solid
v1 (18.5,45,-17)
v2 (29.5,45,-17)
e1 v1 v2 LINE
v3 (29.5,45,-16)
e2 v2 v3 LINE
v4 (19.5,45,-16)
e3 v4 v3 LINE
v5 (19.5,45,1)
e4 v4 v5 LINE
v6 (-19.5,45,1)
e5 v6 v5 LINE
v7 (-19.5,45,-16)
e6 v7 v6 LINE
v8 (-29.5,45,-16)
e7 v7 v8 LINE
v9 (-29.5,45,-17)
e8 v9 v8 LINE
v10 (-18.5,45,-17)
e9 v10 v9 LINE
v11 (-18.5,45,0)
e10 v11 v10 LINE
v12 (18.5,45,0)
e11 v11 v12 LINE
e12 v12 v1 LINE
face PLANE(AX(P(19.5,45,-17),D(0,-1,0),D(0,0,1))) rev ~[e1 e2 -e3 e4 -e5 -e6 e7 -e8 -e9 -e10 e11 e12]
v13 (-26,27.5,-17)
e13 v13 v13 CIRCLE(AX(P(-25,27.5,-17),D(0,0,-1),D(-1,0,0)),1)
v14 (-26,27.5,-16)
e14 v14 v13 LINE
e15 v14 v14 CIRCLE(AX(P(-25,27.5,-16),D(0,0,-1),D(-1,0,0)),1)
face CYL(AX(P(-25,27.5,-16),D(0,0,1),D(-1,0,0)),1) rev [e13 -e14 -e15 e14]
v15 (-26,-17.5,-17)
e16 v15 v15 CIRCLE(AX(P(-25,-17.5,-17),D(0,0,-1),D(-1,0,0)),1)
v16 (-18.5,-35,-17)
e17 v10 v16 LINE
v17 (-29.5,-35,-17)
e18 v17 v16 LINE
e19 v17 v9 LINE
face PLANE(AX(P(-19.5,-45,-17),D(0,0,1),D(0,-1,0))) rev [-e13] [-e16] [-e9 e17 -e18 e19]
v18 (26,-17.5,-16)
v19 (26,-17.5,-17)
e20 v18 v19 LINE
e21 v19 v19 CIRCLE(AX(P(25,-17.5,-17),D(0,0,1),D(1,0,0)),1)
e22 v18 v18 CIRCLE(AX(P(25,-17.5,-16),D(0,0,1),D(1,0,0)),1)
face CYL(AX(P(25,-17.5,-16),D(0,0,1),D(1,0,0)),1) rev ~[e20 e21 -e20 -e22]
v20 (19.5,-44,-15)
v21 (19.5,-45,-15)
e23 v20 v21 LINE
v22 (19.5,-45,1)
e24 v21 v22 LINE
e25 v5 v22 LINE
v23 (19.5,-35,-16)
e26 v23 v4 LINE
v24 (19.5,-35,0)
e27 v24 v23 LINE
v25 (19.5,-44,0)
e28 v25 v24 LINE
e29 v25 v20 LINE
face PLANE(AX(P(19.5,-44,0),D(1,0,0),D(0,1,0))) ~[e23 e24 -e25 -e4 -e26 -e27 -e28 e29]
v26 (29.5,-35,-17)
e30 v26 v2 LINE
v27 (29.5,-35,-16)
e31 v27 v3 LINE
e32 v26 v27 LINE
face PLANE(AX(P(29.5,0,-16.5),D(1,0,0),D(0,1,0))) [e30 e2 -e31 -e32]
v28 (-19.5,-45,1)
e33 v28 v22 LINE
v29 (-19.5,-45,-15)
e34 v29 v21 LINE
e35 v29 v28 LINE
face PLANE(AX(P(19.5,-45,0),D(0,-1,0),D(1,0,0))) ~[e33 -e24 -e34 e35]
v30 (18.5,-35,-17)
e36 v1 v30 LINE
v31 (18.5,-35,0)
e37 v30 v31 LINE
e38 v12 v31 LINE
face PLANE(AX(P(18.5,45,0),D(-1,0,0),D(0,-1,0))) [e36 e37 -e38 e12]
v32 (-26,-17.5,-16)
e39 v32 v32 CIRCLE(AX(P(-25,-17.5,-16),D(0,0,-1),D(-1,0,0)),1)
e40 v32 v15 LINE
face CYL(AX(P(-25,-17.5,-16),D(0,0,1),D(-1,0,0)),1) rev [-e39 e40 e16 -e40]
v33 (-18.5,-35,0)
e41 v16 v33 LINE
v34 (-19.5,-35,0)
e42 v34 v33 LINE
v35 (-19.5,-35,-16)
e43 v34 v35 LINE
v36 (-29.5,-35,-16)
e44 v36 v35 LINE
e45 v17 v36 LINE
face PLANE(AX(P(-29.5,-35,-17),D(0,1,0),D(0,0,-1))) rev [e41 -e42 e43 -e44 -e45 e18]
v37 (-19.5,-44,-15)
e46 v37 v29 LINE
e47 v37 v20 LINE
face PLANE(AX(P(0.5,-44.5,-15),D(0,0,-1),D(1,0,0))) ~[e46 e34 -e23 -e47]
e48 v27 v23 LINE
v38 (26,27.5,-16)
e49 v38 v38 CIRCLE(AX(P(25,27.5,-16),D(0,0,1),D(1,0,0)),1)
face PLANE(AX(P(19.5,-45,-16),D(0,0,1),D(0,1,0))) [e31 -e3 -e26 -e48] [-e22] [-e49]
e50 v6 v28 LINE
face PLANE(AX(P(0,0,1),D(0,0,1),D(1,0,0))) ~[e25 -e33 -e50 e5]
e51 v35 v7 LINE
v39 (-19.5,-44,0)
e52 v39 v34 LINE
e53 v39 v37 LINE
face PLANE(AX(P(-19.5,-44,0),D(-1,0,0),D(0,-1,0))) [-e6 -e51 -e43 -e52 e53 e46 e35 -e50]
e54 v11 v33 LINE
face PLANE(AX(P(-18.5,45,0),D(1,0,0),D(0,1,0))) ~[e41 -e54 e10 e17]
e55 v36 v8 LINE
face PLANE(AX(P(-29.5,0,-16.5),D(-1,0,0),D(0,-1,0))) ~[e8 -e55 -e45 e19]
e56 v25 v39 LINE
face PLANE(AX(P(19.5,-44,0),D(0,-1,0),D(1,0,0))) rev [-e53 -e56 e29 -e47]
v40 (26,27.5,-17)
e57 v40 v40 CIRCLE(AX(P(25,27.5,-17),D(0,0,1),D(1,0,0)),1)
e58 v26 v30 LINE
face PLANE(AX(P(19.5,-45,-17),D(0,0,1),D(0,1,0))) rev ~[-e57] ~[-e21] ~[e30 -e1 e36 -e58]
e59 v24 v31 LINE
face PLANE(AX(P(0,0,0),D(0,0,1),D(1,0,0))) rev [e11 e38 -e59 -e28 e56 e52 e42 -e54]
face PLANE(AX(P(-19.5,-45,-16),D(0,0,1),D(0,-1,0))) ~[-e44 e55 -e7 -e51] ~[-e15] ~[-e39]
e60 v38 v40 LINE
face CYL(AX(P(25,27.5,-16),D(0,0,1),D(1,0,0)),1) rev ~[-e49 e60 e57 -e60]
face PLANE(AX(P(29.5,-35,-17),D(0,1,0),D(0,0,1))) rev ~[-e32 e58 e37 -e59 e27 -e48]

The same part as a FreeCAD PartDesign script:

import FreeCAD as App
import Part
import Sketcher
from FreeCAD import Vector

doc = App.newDocument("Part")
body = doc.addObject("PartDesign::Body", "Body")

# Sketch on XY plane
sketch1 = body.newObject("Sketcher::SketchObject", "Sketch")
sketch1.AttachmentSupport = (doc.getObject("XY_Plane"), [""])
sketch1.MapMode = "FlatFace"
sketch1.addGeometry([
    Part.LineSegment(Vector(-19.5, 45, 0), Vector(-19.5, -45, 0)),
    Part.LineSegment(Vector(-19.5, -45, 0), Vector(19.5, -45, 0)),
    Part.LineSegment(Vector(19.5, -45, 0), Vector(19.5, 45, 0)),
    Part.LineSegment(Vector(19.5, 45, 0), Vector(-19.5, 45, 0)),
], False)
sketch1.addConstraint([
    Sketcher.Constraint("Coincident", 0, 2, 1, 1),
    Sketcher.Constraint("Coincident", 1, 2, 2, 1),
    Sketcher.Constraint("Coincident", 2, 2, 3, 1),
    Sketcher.Constraint("Coincident", 3, 2, 0, 1),
    Sketcher.Constraint("Vertical", 0),
    Sketcher.Constraint("Horizontal", 1),
    Sketcher.Constraint("Vertical", 2),
    Sketcher.Constraint("Horizontal", 3),
    Sketcher.Constraint("Symmetric", 0, 2, 2, 2, -1, 1),
    Sketcher.Constraint("DistanceX", 1, 1, 1, 2, 39.0),
    Sketcher.Constraint("DistanceY", 0, 2, 0, 1, 90.0),
])
pad1 = body.newObject("PartDesign::Pad", "Pad")
pad1.Profile = sketch1
pad1.Length = 1

# Sketch on XY plane
sketch2 = body.newObject("Sketcher::SketchObject", "Sketch001")
sketch2.AttachmentSupport = (doc.getObject("XY_Plane"), [""])
sketch2.MapMode = "FlatFace"
sketch2.addGeometry([
    Part.LineSegment(Vector(18.5, -45, 0), Vector(18.5, 45, 0)),
    Part.LineSegment(Vector(18.5, 45, 0), Vector(19.5, 45, 0)),
    Part.LineSegment(Vector(19.5, 45, 0), Vector(19.5, -45, 0)),
    Part.LineSegment(Vector(19.5, -45, 0), Vector(18.5, -45, 0)),
], False)
sketch2.addConstraint([
    Sketcher.Constraint("Coincident", 0, 2, 1, 1),
    Sketcher.Constraint("Coincident", 1, 2, 2, 1),
    Sketcher.Constraint("Coincident", 2, 2, 3, 1),
    Sketcher.Constraint("Coincident", 3, 2, 0, 1),
    Sketcher.Constraint("Vertical", 0),
    Sketcher.Constraint("Horizontal", 1),
    Sketcher.Constraint("Vertical", 2),
    Sketcher.Constraint("Horizontal", 3),
    Sketcher.Constraint("DistanceX", 1, 1, 1, 2, 1.0),
    Sketcher.Constraint("DistanceY", 0, 1, 0, 2, 90.0),
    Sketcher.Constraint("DistanceY", -1, 1, 0, 2, 45.0),
    Sketcher.Constraint("DistanceX", -1, 1, 0, 2, 18.5),
])
pad2 = body.newObject("PartDesign::Pad", "Pad001")
pad2.Profile = sketch2
pad2.Length = 17
pad2.Reversed = True

# Sketch on YZ plane
sketch3 = body.newObject("Sketcher::SketchObject", "Sketch002")
sketch3.AttachmentSupport = (doc.getObject("YZ_Plane"), [""])
sketch3.MapMode = "FlatFace"
sketch3.AttachmentOffset = App.Placement(Vector(0, 0, 19.5), App.Rotation())
sketch3.addGeometry([
    Part.LineSegment(Vector(-45, -16, 0), Vector(-45, -17, 0)),
    Part.LineSegment(Vector(-45, -17, 0), Vector(45, -17, 0)),
    Part.LineSegment(Vector(45, -17, 0), Vector(45, -16, 0)),
    Part.LineSegment(Vector(45, -16, 0), Vector(-45, -16, 0)),
], False)
sketch3.addConstraint([
    Sketcher.Constraint("Coincident", 0, 2, 1, 1),
    Sketcher.Constraint("Coincident", 1, 2, 2, 1),
    Sketcher.Constraint("Coincident", 2, 2, 3, 1),
    Sketcher.Constraint("Coincident", 3, 2, 0, 1),
    Sketcher.Constraint("Vertical", 0),
    Sketcher.Constraint("Horizontal", 1),
    Sketcher.Constraint("Vertical", 2),
    Sketcher.Constraint("Horizontal", 3),
    Sketcher.Constraint("DistanceX", 1, 1, 1, 2, 90.0),
    Sketcher.Constraint("DistanceY", 0, 2, 0, 1, 1.0),
    Sketcher.Constraint("DistanceX", 0, 2, -1, 1, 45.0),
    Sketcher.Constraint("DistanceY", 0, 2, -1, 1, 17.0),
])
pad3 = body.newObject("PartDesign::Pad", "Pad002")
pad3.Profile = sketch3
pad3.Length = 10

# Sketch on YZ plane
sketch4 = body.newObject("Sketcher::SketchObject", "Sketch003")
sketch4.AttachmentSupport = (doc.getObject("YZ_Plane"), [""])
sketch4.MapMode = "FlatFace"
sketch4.AttachmentOffset = App.Placement(Vector(0, 0, 29.5), App.Rotation())
sketch4.addGeometry([
    Part.LineSegment(Vector(-45, 1, 0), Vector(-45, -17, 0)),
    Part.LineSegment(Vector(-45, -17, 0), Vector(-35, -17, 0)),
    Part.LineSegment(Vector(-35, -17, 0), Vector(-35, 1, 0)),
    Part.LineSegment(Vector(-35, 1, 0), Vector(-45, 1, 0)),
], False)
sketch4.addConstraint([
    Sketcher.Constraint("Coincident", 0, 2, 1, 1),
    Sketcher.Constraint("Coincident", 1, 2, 2, 1),
    Sketcher.Constraint("Coincident", 2, 2, 3, 1),
    Sketcher.Constraint("Coincident", 3, 2, 0, 1),
    Sketcher.Constraint("Vertical", 0),
    Sketcher.Constraint("Horizontal", 1),
    Sketcher.Constraint("Vertical", 2),
    Sketcher.Constraint("Horizontal", 3),
    Sketcher.Constraint("DistanceX", 1, 1, 1, 2, 10.0),
    Sketcher.Constraint("DistanceY", 0, 2, 0, 1, 18.0),
    Sketcher.Constraint("DistanceX", 0, 2, -1, 1, 45.0),
    Sketcher.Constraint("DistanceY", 0, 2, -1, 1, 17.0),
])
pocket1 = body.newObject("PartDesign::Pocket", "Pocket")
pocket1.Profile = sketch4
pocket1.Length = 11

# Sketch on XY plane
sketch5 = body.newObject("Sketcher::SketchObject", "Sketch004")
sketch5.AttachmentSupport = (doc.getObject("XY_Plane"), [""])
sketch5.MapMode = "FlatFace"
sketch5.addGeometry([
    Part.LineSegment(Vector(-19.5, -45, 0), Vector(-19.5, -44, 0)),
    Part.LineSegment(Vector(-19.5, -44, 0), Vector(18.5, -44, 0)),
    Part.LineSegment(Vector(18.5, -44, 0), Vector(18.5, -45, 0)),
    Part.LineSegment(Vector(18.5, -45, 0), Vector(-19.5, -45, 0)),
], False)
sketch5.addConstraint([
    Sketcher.Constraint("Coincident", 0, 2, 1, 1),
    Sketcher.Constraint("Coincident", 1, 2, 2, 1),
    Sketcher.Constraint("Coincident", 2, 2, 3, 1),
    Sketcher.Constraint("Coincident", 3, 2, 0, 1),
    Sketcher.Constraint("Vertical", 0),
    Sketcher.Constraint("Horizontal", 1),
    Sketcher.Constraint("Vertical", 2),
    Sketcher.Constraint("Horizontal", 3),
    Sketcher.Constraint("DistanceX", 1, 1, 1, 2, 38.0),
    Sketcher.Constraint("DistanceY", 0, 1, 0, 2, 1.0),
    Sketcher.Constraint("DistanceY", 0, 2, -1, 1, 44.0),
    Sketcher.Constraint("DistanceX", 0, 2, -1, 1, 19.5),
])
pad4 = body.newObject("PartDesign::Pad", "Pad003")
pad4.Profile = sketch5
pad4.Length = 15
pad4.Reversed = True

# Sketch on XY plane
sketch6 = body.newObject("Sketcher::SketchObject", "Sketch005")
sketch6.AttachmentSupport = (doc.getObject("XY_Plane"), [""])
sketch6.MapMode = "FlatFace"
sketch6.AttachmentOffset = App.Placement(Vector(0, 0, -16), App.Rotation())
sketch6.addGeometry([
    Part.Circle(Vector(25, 27.5, 0), Vector(0, 0, 1), 1),
    Part.Circle(Vector(25, -17.5, 0), Vector(0, 0, 1), 1),
], False)
sketch6.addConstraint([
    Sketcher.Constraint("Equal", 0, 1),
    Sketcher.Constraint("Vertical", 0, 3, 1, 3),
    Sketcher.Constraint("Diameter", 0, 2.0),
    Sketcher.Constraint("DistanceX", -1, 1, 0, 3, 25.0),
    Sketcher.Constraint("DistanceY", 1, 3, 0, 3, 45.0),
    Sketcher.Constraint("DistanceY", -1, 1, 0, 3, 27.5),
])
pocket2 = body.newObject("PartDesign::Pocket", "Pocket001")
pocket2.Profile = sketch6
pocket2.Type = "ThroughAll"
body2 = doc.addObject("PartDesign::Body", "Body001")
doc.recompute()

body2.BaseFeature = body
doc.recompute()

mirroring = doc.addObject("Part::Mirroring", "Mirroring")
mirroring.Source = body
mirroring.Base = Vector(0, 0, 0)
mirroring.Normal = Vector(1, 0, 0)
body3 = doc.addObject("PartDesign::Body", "Body002")
body3.BaseFeature = mirroring
boolean = body2.newObject("PartDesign::Boolean", "Boolean")
boolean.Type = "Fuse"
boolean.addObjects([body3])
doc.recompute()
mirroring.Visibility = False

doc.recompute()
